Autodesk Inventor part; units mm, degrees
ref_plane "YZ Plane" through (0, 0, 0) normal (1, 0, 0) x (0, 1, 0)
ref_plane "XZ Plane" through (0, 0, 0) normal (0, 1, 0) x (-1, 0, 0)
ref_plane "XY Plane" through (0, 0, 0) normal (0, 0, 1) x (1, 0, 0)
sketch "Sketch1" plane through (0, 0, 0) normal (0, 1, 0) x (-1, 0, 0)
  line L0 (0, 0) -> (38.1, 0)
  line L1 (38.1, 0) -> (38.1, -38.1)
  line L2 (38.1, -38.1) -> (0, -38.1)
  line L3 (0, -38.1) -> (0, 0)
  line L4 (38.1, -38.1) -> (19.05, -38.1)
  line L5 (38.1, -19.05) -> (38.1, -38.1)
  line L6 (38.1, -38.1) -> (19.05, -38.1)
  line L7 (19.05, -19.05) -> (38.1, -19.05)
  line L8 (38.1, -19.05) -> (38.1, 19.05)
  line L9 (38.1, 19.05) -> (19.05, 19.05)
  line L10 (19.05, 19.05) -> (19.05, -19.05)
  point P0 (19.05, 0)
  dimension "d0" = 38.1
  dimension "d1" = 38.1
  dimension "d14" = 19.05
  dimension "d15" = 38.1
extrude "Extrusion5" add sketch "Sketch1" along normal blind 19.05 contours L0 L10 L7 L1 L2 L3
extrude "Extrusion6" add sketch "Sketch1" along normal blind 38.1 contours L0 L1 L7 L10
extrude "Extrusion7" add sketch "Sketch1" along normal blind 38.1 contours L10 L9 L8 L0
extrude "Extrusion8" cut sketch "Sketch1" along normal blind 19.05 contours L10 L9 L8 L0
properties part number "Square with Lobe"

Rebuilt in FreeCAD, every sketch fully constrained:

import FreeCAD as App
import Part
import Sketcher

V = App.Vector
Q = App.Units.Quantity


def add_polygon(sketch, points):
    """Adds a closed chain of lines whose ends are joined by coincident constraints."""
    first, n = sketch.GeometryCount, len(points)
    for a, b in zip(points, points[1:] + points[:1]):
        sketch.addGeometry(Part.LineSegment(App.Vector(*a, 0), App.Vector(*b, 0)), False)
    for i in range(n):
        sketch.addConstraint(Sketcher.Constraint("Coincident", first + i, 2, first + (i + 1) % n, 1))

doc = App.newDocument("Part")
body = doc.addObject("PartDesign::Body", "Body")

# Sketch on XZ plane
sketch1 = body.newObject("Sketcher::SketchObject", "Sketch")
sketch1.AttachmentSupport = (doc.getObject("XZ_Plane"), [""])
sketch1.MapMode = "FlatFace"
add_polygon(sketch1, [(-19, 0), (0, 0), (0, -38), (-38, -38), (-38, -19), (-19, -19)])  # lines 0-5
sketch1.addConstraint(Sketcher.Constraint("Horizontal", 0))
sketch1.addConstraint(Sketcher.Constraint("Vertical", 1))
sketch1.addConstraint(Sketcher.Constraint("Horizontal", 2))
sketch1.addConstraint(Sketcher.Constraint("Vertical", 3))
sketch1.addConstraint(Sketcher.Constraint("Horizontal", 4))
sketch1.addConstraint(Sketcher.Constraint("Vertical", 5))
sketch1.addConstraint(Sketcher.Constraint("Coincident", 0, 2, -1, 1))
sketch1.addConstraint(Sketcher.Constraint("Equal", 0, 4))
sketch1.addConstraint(Sketcher.Constraint("Equal", 2, 1))
sketch1.addConstraint(Sketcher.Constraint("Equal", 4, 3))
sketch1.addConstraint(Sketcher.Constraint("DistanceX", 2, 2, 2, 1, Q("1.5 in")))
pad1 = body.newObject("PartDesign::Pad", "Pad")
pad1.Profile = sketch1
pad1.Length = Q("0.75 in")
pad1.Reversed = True

# Sketch on XZ plane
sketch2 = body.newObject("Sketcher::SketchObject", "Sketch001")
sketch2.AttachmentSupport = (doc.getObject("XZ_Plane"), [""])
sketch2.MapMode = "FlatFace"
add_polygon(sketch2, [(-38, 0), (-19, 0), (-19, -19), (-38, -19)])  # lines 0-3
sketch2.addConstraint(Sketcher.Constraint("Horizontal", 0))
sketch2.addConstraint(Sketcher.Constraint("Vertical", 1))
sketch2.addConstraint(Sketcher.Constraint("Horizontal", 2))
sketch2.addConstraint(Sketcher.Constraint("Vertical", 3))
sketch2.addConstraint(Sketcher.Constraint("PointOnObject", 0, 2, -1))
sketch2.addConstraint(Sketcher.Constraint("Equal", 2, 1))
sketch2.addConstraint(Sketcher.Constraint("DistanceX", 0, 1, 0, 2, Q("0.75 in")))
sketch2.addConstraint(Sketcher.Constraint("DistanceX", 2, 2, -1, 1, Q("1.5 in")))
pad2 = body.newObject("PartDesign::Pad", "Pad001")
pad2.Profile = sketch2
pad2.Length = Q("1.5 in")
pad2.Reversed = True

# Sketch on XZ plane
sketch3 = body.newObject("Sketcher::SketchObject", "Sketch002")
sketch3.AttachmentSupport = (doc.getObject("XZ_Plane"), [""])
sketch3.MapMode = "FlatFace"
add_polygon(sketch3, [(-19, 19), (-19, 0), (-38, 0), (-38, 19)])  # lines 0-3
sketch3.addConstraint(Sketcher.Constraint("Vertical", 0))
sketch3.addConstraint(Sketcher.Constraint("Horizontal", 1))
sketch3.addConstraint(Sketcher.Constraint("Vertical", 2))
sketch3.addConstraint(Sketcher.Constraint("Horizontal", 3))
sketch3.addConstraint(Sketcher.Constraint("PointOnObject", 0, 2, -1))
sketch3.addConstraint(Sketcher.Constraint("Equal", 3, 0))
sketch3.addConstraint(Sketcher.Constraint("DistanceX", 1, 2, 1, 1, Q("0.75 in")))
sketch3.addConstraint(Sketcher.Constraint("DistanceX", 1, 2, -1, 1, Q("1.5 in")))
pad3 = body.newObject("PartDesign::Pad", "Pad002")
pad3.Profile = sketch3
pad3.Length = Q("1.5 in")
pad3.Reversed = True

# Sketch on XZ plane
sketch4 = body.newObject("Sketcher::SketchObject", "Sketch003")
sketch4.AttachmentSupport = (doc.getObject("XZ_Plane"), [""])
sketch4.MapMode = "FlatFace"
add_polygon(sketch4, [(-19, 19), (-19, 0), (-38, 0), (-38, 19)])  # lines 0-3
sketch4.addConstraint(Sketcher.Constraint("Vertical", 0))
sketch4.addConstraint(Sketcher.Constraint("Horizontal", 1))
sketch4.addConstraint(Sketcher.Constraint("Vertical", 2))
sketch4.addConstraint(Sketcher.Constraint("Horizontal", 3))
sketch4.addConstraint(Sketcher.Constraint("PointOnObject", 0, 2, -1))
sketch4.addConstraint(Sketcher.Constraint("Equal", 3, 0))
sketch4.addConstraint(Sketcher.Constraint("DistanceX", 1, 2, 1, 1, Q("0.75 in")))
sketch4.addConstraint(Sketcher.Constraint("DistanceX", 1, 2, -1, 1, Q("1.5 in")))
pocket1 = body.newObject("PartDesign::Pocket", "Pocket")
pocket1.Profile = sketch4
pocket1.Length = Q("0.75 in")

doc.recompute()
